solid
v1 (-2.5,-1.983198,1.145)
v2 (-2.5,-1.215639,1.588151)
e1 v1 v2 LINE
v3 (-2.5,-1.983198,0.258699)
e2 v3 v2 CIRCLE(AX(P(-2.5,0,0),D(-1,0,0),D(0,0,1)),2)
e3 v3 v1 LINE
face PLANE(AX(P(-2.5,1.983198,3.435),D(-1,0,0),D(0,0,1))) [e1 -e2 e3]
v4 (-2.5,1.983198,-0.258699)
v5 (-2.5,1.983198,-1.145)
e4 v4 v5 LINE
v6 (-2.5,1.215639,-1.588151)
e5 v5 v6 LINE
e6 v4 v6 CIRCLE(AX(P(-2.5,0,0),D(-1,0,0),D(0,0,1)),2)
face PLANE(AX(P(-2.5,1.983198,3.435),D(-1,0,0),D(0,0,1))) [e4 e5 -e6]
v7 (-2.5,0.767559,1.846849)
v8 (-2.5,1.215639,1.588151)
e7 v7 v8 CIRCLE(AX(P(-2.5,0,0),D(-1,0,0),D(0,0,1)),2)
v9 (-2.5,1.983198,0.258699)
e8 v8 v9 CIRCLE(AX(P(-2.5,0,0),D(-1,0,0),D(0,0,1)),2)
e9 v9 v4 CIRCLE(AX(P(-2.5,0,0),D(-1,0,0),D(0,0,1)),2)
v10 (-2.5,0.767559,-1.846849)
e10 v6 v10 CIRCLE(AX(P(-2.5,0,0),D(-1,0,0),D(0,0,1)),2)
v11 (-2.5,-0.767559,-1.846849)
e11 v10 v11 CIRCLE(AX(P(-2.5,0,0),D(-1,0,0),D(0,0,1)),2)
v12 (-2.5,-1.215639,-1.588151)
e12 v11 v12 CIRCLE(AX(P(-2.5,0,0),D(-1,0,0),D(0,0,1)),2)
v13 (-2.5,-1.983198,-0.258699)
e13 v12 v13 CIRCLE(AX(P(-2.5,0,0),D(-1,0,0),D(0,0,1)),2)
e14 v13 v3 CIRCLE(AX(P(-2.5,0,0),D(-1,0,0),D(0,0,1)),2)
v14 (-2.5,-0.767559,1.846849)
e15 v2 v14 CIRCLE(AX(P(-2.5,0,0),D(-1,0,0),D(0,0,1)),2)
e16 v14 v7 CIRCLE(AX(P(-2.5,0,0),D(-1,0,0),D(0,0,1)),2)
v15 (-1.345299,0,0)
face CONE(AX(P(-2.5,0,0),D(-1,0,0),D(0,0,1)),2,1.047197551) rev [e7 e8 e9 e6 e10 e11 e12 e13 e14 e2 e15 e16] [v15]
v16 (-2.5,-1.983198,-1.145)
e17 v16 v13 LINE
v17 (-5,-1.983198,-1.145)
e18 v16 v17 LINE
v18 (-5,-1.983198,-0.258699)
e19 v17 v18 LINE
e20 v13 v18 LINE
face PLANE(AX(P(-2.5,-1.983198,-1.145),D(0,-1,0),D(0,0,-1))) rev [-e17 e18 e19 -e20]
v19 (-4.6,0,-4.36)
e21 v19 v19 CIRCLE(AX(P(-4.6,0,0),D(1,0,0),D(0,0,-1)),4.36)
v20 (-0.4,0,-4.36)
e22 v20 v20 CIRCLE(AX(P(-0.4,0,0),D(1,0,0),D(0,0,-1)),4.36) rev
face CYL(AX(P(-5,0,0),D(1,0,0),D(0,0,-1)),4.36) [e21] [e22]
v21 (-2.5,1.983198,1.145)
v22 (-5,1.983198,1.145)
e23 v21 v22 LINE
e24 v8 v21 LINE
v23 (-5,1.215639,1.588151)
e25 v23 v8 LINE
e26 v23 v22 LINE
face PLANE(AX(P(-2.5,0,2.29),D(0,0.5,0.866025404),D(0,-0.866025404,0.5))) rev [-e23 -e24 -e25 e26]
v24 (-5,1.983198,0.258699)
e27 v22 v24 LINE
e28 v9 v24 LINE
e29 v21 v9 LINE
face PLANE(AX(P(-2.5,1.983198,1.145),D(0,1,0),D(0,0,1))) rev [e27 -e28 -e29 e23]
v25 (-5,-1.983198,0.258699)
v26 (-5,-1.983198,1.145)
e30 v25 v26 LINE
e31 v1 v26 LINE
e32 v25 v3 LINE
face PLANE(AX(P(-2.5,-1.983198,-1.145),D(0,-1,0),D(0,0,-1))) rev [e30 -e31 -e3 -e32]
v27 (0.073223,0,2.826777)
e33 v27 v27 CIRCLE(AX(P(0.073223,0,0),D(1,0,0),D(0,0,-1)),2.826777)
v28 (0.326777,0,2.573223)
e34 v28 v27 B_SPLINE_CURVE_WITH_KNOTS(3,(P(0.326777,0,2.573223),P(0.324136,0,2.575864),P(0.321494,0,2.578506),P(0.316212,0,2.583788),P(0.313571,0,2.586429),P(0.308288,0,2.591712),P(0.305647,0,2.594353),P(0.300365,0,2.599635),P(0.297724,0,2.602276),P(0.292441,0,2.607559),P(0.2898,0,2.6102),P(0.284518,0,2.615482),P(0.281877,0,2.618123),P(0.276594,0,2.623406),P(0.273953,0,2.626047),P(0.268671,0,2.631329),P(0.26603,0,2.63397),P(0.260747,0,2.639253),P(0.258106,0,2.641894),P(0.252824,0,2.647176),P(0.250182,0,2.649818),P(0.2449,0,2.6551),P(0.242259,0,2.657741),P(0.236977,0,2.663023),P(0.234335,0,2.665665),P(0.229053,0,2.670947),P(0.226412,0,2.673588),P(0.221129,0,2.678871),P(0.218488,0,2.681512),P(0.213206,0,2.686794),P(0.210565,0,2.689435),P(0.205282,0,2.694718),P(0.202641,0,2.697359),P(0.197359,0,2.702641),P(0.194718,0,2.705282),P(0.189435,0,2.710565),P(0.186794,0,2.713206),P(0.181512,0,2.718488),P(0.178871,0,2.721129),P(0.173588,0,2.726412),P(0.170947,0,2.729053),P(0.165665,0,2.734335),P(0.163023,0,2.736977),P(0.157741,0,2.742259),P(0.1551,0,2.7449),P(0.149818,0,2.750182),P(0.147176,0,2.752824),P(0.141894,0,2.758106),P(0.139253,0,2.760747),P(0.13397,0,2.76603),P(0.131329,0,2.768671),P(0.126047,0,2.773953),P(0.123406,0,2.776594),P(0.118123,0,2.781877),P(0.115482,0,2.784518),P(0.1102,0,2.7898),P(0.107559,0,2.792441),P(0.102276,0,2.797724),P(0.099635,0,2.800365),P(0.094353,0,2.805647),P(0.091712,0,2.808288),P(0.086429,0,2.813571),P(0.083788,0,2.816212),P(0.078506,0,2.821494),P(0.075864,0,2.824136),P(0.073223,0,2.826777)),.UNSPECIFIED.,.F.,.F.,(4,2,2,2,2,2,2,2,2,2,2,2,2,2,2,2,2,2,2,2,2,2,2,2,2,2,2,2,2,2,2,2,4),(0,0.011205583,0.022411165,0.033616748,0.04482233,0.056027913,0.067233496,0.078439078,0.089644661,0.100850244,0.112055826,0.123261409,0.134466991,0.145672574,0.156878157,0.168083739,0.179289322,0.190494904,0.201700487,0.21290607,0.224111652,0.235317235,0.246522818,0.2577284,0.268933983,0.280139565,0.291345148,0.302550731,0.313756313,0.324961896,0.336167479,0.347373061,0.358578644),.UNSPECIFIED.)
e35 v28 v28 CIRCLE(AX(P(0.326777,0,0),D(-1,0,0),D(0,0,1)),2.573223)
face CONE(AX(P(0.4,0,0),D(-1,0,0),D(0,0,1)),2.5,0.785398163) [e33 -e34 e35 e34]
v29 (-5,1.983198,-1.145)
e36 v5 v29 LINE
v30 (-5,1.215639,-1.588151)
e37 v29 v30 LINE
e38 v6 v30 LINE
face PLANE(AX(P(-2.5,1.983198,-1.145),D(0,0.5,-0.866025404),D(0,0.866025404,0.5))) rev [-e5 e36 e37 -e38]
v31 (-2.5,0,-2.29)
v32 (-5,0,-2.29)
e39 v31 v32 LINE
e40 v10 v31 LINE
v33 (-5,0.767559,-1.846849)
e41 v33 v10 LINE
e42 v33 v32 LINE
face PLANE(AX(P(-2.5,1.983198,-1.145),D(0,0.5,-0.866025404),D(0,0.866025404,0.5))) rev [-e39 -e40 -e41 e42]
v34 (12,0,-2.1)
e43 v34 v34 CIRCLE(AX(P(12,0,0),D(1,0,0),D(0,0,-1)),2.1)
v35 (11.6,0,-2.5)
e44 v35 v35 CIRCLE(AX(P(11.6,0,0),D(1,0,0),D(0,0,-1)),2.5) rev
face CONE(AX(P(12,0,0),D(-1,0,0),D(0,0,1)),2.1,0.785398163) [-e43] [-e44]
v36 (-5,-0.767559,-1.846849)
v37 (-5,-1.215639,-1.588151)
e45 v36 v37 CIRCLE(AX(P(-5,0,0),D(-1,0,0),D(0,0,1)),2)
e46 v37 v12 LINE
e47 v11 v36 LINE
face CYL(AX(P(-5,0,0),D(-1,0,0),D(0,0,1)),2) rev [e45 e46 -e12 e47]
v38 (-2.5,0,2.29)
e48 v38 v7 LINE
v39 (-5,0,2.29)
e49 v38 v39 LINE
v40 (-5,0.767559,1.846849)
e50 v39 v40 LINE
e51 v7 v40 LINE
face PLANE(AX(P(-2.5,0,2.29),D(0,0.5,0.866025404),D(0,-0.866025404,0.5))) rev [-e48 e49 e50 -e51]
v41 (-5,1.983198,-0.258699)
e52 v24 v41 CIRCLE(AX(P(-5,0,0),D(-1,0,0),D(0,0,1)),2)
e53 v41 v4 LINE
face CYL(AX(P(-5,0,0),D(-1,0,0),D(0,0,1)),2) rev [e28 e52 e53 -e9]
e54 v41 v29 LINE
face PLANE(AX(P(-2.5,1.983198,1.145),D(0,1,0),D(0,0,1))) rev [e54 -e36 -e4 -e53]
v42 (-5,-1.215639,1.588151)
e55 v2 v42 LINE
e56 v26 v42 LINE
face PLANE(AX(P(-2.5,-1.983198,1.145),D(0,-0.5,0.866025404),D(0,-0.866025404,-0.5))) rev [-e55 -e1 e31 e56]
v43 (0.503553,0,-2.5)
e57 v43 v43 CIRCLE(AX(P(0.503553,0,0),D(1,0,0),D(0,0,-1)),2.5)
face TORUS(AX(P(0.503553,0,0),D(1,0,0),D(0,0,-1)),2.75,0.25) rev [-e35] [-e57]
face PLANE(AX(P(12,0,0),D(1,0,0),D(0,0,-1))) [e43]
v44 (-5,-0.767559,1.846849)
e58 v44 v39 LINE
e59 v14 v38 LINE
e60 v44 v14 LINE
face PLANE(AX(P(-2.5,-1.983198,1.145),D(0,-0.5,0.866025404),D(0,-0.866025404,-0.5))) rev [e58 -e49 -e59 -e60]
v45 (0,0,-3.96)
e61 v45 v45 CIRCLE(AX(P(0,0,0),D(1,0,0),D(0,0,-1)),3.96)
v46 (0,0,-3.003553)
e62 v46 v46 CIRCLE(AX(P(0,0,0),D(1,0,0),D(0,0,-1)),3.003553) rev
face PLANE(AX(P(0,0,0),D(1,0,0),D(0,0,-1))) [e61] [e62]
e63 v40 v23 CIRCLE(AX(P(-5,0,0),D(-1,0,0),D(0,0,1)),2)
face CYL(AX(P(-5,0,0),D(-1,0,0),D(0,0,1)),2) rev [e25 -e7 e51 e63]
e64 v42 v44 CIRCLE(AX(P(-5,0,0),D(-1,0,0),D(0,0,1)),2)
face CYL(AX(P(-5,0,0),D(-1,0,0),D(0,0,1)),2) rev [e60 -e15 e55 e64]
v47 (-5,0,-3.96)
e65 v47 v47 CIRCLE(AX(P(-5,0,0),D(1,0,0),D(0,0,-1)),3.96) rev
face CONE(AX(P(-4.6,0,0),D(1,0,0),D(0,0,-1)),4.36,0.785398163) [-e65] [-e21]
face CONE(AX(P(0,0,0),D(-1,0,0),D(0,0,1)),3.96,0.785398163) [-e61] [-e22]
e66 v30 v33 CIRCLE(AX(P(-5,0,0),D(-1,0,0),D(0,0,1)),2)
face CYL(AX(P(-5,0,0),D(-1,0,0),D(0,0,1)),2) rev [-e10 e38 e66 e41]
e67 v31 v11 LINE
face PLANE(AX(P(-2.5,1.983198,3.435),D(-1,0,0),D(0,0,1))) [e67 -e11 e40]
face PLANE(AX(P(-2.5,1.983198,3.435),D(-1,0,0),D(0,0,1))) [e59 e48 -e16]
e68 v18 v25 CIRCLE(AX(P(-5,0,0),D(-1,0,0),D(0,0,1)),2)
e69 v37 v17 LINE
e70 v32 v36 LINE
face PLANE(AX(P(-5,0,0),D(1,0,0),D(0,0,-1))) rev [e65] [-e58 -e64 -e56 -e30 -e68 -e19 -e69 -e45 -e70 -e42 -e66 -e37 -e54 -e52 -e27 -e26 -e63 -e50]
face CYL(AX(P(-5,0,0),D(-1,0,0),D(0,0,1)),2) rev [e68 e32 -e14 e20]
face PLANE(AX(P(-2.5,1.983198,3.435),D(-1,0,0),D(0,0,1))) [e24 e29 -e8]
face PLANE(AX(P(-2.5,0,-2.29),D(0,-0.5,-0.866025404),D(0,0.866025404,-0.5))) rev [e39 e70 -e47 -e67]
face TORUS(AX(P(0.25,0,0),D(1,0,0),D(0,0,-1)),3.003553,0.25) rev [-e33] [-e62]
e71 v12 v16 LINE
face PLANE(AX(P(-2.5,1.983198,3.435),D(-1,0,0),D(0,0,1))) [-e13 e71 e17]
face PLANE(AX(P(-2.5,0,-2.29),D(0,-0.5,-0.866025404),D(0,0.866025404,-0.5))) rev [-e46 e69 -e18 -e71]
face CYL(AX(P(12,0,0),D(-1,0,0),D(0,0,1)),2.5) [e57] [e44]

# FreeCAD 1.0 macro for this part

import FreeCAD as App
import Part
import Sketcher
from FreeCAD import Vector
Q = App.Units.Quantity


def edges_at(feature, points):
    """Names of the edges that pass closest to the given points."""
    edges = feature.Shape.Edges
    near = lambda p: min(range(len(edges)), key=lambda i: edges[i].distToShape(Part.Vertex(*p))[0])
    return sorted({f"Edge{near(p) + 1}" for p in points})


def add_polygon(sketch, points):
    """Adds a closed chain of lines whose ends are joined by coincident constraints."""
    first, n = sketch.GeometryCount, len(points)
    for a, b in zip(points, points[1:] + points[:1]):
        sketch.addGeometry(Part.LineSegment(App.Vector(*a, 0), App.Vector(*b, 0)), False)
    for i in range(n):
        sketch.addConstraint(Sketcher.Constraint("Coincident", first + i, 2, first + (i + 1) % n, 1))

doc = App.newDocument("Part")
body = doc.addObject("PartDesign::Body", "Body")

sketch1 = body.newObject("Sketcher::SketchObject", "Sketch")
sketch1.AttachmentSupport = (doc.getObject("YZ_Plane"), [""])
sketch1.MapMode = "FlatFace"
sketch1.addGeometry(Part.Circle(Vector(0, 0, 0), Vector(0, 0, 1), 4.4), False)
sketch1.addConstraint([
    Sketcher.Constraint("Coincident", 0, 3, -1, 1),
    Sketcher.Constraint("Diameter", 0, 8.72),
])
pad1 = body.newObject("PartDesign::Pad", "Pad")
pad1.Profile = sketch1
pad1.Length = 5
pad1.Reversed = True

sketch2 = body.newObject("Sketcher::SketchObject", "Sketch001")
sketch2.AttachmentSupport = (doc.getObject("YZ_Plane"), [""])
sketch2.MapMode = "FlatFace"
sketch2.AttachmentOffset = App.Placement(Vector(0, 0, -5), App.Rotation())
sketch2.addGeometry(Part.Circle(Vector(0, 0, 0), Vector(0, 0, 1), 2), False)
sketch2.addConstraint([
    Sketcher.Constraint("Coincident", 0, 3, -1, 1),
    Sketcher.Constraint("Diameter", 0, 4.0),
])
doc.recompute()
hole = body.newObject("PartDesign::Hole", "Hole")
hole.Profile = sketch2
hole.ThreadType = "None"
hole.Diameter = 4
hole.DepthType = "Dimension"
hole.Depth = 2.5
hole.DrillPoint = "Angled"
hole.DrillPointAngle = 120
hole.Reversed = True

sketch3 = body.newObject("Sketcher::SketchObject", "Sketch002")
sketch3.AttachmentSupport = (doc.getObject("YZ_Plane"), [""])
sketch3.MapMode = "FlatFace"
sketch3.AttachmentOffset = App.Placement(Vector(0, 0, -5), App.Rotation())
add_polygon(sketch3, [(0, 2.3), (2, 1.1), (2, -1.1), (0, -2.3), (-2, -1.1), (-2, 1.1)])
sketch3.addConstraint([
    Sketcher.Constraint("Vertical", 1),
    Sketcher.Constraint("Vertical", 4),
    Sketcher.Constraint("Symmetric", 0, 2, 3, 2, -1, 1),
    Sketcher.Constraint("Symmetric", 2, 2, 5, 2, -1, 1),
    Sketcher.Constraint("PointOnObject", 2, 2, -2),
    Sketcher.Constraint("Parallel", 2, 5),
    Sketcher.Constraint("Horizontal", 1, 2, 3, 2),
    Sketcher.Constraint("Angle", 0, Q("-30 deg")),
    Sketcher.Constraint("DistanceY", 1, 2, 1, 1, 2.29),
    Sketcher.Constraint("Distance", 0, 2.29),
])
pocket1 = body.newObject("PartDesign::Pocket", "Pocket")
pocket1.Profile = sketch3
pocket1.Length = 2.5
pocket1.Reversed = True

sketch4 = body.newObject("Sketcher::SketchObject", "Sketch003")
sketch4.AttachmentSupport = (doc.getObject("YZ_Plane"), [""])
sketch4.MapMode = "FlatFace"
sketch4.addGeometry(Part.Circle(Vector(0, 0, 0), Vector(0, 0, 1), 2.5), False)
sketch4.addConstraint([
    Sketcher.Constraint("Coincident", 0, 3, -1, 1),
    Sketcher.Constraint("Diameter", 0, 5.0),
])
pad2 = body.newObject("PartDesign::Pad", "Pad001")
pad2.Profile = sketch4
pad2.Length = 12
doc.recompute()

chamfer = body.newObject("PartDesign::Chamfer", "Chamfer")
chamfer.Base = (pad2, edges_at(pad2, [
    (0, 0, 4.36),
    (-5, 0, 4.36),
    (0, 0, 2.5),
    (12, 0, 2.5),
]))
chamfer.Size = 0.4
doc.recompute()

fillet = body.newObject("PartDesign::Fillet", "Fillet")
fillet.Base = (chamfer, edges_at(chamfer, [(0.4, 0, 2.5), (0, 0, 2.9)]))
fillet.Radius = 0.25

doc.recompute()
